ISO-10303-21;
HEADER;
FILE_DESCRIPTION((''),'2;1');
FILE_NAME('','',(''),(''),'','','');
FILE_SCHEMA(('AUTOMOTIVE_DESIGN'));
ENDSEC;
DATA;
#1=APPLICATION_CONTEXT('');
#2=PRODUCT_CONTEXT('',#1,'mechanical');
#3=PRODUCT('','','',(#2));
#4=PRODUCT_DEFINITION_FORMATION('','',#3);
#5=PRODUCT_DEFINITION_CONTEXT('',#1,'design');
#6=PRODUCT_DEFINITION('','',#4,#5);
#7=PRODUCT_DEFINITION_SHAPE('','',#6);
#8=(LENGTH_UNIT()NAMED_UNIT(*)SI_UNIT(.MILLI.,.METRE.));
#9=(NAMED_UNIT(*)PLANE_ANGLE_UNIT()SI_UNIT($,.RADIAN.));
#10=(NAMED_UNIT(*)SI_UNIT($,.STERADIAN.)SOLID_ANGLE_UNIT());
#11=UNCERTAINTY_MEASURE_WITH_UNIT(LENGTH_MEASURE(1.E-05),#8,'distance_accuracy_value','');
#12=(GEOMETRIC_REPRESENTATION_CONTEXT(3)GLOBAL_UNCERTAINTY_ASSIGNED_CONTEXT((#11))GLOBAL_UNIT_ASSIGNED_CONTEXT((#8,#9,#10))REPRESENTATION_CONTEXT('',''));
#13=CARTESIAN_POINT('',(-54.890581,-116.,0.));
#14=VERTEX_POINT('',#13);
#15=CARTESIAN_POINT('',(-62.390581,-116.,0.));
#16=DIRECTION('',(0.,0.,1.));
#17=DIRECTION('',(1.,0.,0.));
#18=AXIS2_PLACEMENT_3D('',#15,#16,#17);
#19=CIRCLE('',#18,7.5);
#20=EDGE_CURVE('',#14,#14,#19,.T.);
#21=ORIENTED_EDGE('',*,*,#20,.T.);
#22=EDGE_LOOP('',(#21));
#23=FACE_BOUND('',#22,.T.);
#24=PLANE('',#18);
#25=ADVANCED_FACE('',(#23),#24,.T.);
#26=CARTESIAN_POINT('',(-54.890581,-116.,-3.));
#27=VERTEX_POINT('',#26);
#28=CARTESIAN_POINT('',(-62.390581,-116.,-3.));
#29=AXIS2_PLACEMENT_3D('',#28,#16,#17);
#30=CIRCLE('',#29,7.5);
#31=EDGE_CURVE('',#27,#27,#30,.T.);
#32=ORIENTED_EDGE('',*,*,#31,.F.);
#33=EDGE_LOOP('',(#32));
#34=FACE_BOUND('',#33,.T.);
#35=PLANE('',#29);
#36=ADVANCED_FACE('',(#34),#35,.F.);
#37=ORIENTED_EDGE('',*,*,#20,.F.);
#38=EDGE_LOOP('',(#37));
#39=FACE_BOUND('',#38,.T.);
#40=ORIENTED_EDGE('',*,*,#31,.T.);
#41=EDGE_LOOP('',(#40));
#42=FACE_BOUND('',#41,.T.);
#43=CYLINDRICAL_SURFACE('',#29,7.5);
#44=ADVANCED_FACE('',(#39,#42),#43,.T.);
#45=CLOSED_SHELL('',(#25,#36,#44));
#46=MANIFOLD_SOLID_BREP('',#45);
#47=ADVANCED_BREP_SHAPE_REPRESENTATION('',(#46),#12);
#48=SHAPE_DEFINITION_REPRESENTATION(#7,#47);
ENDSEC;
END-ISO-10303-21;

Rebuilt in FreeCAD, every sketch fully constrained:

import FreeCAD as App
import Part
import Sketcher

V = App.Vector
Q = App.Units.Quantity

doc = App.newDocument("Part")
body = doc.addObject("PartDesign::Body", "Body")

# Sketch on XY plane
sketch1 = body.newObject("Sketcher::SketchObject", "Sketch")
sketch1.AttachmentSupport = (doc.getObject("XY_Plane"), [""])
sketch1.MapMode = "FlatFace"
sketch1.addGeometry(Part.Circle(V(-62.390581, -116, 0), V(0, 0, 1), 7.5), False)
sketch1.addConstraint([
    Sketcher.Constraint("Diameter", 0, Q("15 mm")),
    Sketcher.Constraint("DistanceY", 0, 3, -1, 1, Q("116 mm")),
    Sketcher.Constraint("DistanceX", 0, 3, -1, 1, Q("62.390581 mm")),
])
pad1 = body.newObject("PartDesign::Pad", "Pad")
pad1.Profile = sketch1
pad1.Length = 3
pad1.Reversed = True

doc.recompute()
